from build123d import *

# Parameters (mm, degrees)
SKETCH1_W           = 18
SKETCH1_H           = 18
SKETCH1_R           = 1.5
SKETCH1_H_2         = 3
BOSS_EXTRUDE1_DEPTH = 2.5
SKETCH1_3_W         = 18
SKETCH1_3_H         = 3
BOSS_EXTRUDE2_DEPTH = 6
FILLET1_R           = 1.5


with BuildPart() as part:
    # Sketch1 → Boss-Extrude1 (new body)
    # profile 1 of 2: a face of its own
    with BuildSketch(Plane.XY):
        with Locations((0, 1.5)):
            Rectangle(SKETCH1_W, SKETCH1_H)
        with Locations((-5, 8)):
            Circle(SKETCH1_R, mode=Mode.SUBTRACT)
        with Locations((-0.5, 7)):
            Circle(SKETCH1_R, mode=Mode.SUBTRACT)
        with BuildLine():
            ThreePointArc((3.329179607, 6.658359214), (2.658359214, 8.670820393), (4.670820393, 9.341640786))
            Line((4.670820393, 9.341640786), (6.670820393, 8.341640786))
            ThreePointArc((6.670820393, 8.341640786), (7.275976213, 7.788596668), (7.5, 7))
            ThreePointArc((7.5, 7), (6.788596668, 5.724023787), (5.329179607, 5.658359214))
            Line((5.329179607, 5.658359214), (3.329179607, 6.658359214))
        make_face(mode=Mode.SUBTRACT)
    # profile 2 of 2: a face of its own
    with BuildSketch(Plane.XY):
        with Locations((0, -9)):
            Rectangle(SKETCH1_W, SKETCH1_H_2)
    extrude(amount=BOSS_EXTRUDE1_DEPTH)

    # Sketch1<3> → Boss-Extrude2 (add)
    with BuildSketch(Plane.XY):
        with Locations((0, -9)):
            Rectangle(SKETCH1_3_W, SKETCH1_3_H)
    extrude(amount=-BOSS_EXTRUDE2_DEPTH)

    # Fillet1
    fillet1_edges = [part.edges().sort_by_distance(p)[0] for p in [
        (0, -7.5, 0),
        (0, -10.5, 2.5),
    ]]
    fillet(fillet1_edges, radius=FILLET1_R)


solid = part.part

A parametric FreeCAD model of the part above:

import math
import FreeCAD as App
import Part
import Sketcher

V = App.Vector


def edges_at(feature, points):
    """Names of the edges that pass closest to the given points."""
    edges = feature.Shape.Edges
    near = lambda p: min(range(len(edges)), key=lambda i: edges[i].distToShape(Part.Vertex(*p))[0])
    return sorted({f"Edge{near(p) + 1}" for p in points})


def add_polygon(sketch, points):
    """Adds a closed chain of lines whose ends are joined by coincident constraints."""
    first, n = sketch.GeometryCount, len(points)
    for a, b in zip(points, points[1:] + points[:1]):
        sketch.addGeometry(Part.LineSegment(App.Vector(*a, 0), App.Vector(*b, 0)), False)
    for i in range(n):
        sketch.addConstraint(Sketcher.Constraint("Coincident", first + i, 2, first + (i + 1) % n, 1))

doc = App.newDocument("Part")
params = doc.addObject("Spreadsheet::Sheet", "Params")
for row, (alias, value) in enumerate([
    ("sketch1_diameter", "3 mm"),
    ("sketch1_width", "18 mm"),
    ("sketch1_height", "21 mm"),
    ("pad1_length", "2.5 mm"),
    ("sketch2_width", "18 mm"),
    ("sketch2_height", "3 mm"),
    ("pad2_length", "6 mm"),
    ("fillet_radius", "1.5 mm"),
], start=1):
    params.set(f"A{row}", alias)
    params.set(f"B{row}", "=" + value)
    params.setAlias(f"B{row}", alias)

body = doc.addObject("PartDesign::Body", "Body")

sketch1 = doc.addObject("Sketcher::SketchObject", "Sketch")
body.addObject(sketch1)
sketch1.AttachmentSupport = (doc.XY_Plane, [""])
sketch1.MapMode = "FlatFace"
add_polygon(sketch1, [(-9, 10.5), (-9, -10.5), (9, -10.5), (9, 10.5)])
sketch1.addGeometry(Part.Circle(V(-0.5, 7, 0), V(0, 0, 1), 1.5), False)
sketch1.addGeometry(Part.LineSegment(V(5.32918, 5.658359, 0), V(3.32918, 6.658359, 0)), False)
sketch1.addGeometry(Part.ArcOfCircle(Part.Circle(V(4, 8, 0), V(0, 0, 1), 1.5), math.radians(63.434949), math.radians(243.434949)), False)
sketch1.addGeometry(Part.LineSegment(V(4.67082, 9.341641, 0), V(6.67082, 8.341641, 0)), False)
sketch1.addGeometry(Part.ArcOfCircle(Part.Circle(V(6, 7, 0), V(0, 0, 1), 1.5), math.radians(0), math.radians(63.434949)), False)
sketch1.addGeometry(Part.ArcOfCircle(Part.Circle(V(6, 7, 0), V(0, 0, 1), 1.5), math.radians(-116.565051), math.radians(0)), False)
sketch1.addGeometry(Part.Circle(V(-5, 8, 0), V(0, 0, 1), 1.5), False)
sketch1.addConstraint(Sketcher.Constraint("Tangent", 5, 2, 6, 2))
sketch1.addConstraint(Sketcher.Constraint("Tangent", 6, 1, 7, 1))
sketch1.addConstraint(Sketcher.Constraint("Tangent", 7, 2, 8, 2))
sketch1.addConstraint(Sketcher.Constraint("Tangent", 8, 1, 9, 2))
sketch1.addConstraint(Sketcher.Constraint("Tangent", 9, 1, 5, 1))
sketch1.addConstraint(Sketcher.Constraint("Vertical", 0))
sketch1.addConstraint(Sketcher.Constraint("Horizontal", 1))
sketch1.addConstraint(Sketcher.Constraint("Vertical", 2))
sketch1.addConstraint(Sketcher.Constraint("Horizontal", 3))
sketch1.addConstraint(Sketcher.Constraint("Equal", 4, 6))
sketch1.addConstraint(Sketcher.Constraint("Equal", 6, 8))
sketch1.addConstraint(Sketcher.Constraint("Equal", 8, 9))
sketch1.addConstraint(Sketcher.Constraint("Equal", 9, 10))
sketch1.addConstraint(Sketcher.Constraint("Symmetric", 0, 2, 2, 2, -1, 1))
sketch1.addConstraint(Sketcher.Constraint("Horizontal", 4, 3, 8, 3))
sketch1.addConstraint(Sketcher.Constraint("Horizontal", 6, 3, 10, 3))
sketch1.addConstraint(Sketcher.Constraint("Horizontal", 9, 3, 8, 1))
sketch1.addConstraint(Sketcher.Constraint("Diameter", 4, 3.0))
sketch1.addConstraint(Sketcher.Constraint("DistanceX", 1, 1, 1, 2, 18.0))
sketch1.addConstraint(Sketcher.Constraint("DistanceY", 0, 2, 0, 1, 21.0))
sketch1.addConstraint(Sketcher.Constraint("DistanceY", -1, 1, 4, 3, 7.0))
sketch1.addConstraint(Sketcher.Constraint("DistanceX", -1, 1, 6, 3, 4.0))
sketch1.addConstraint(Sketcher.Constraint("DistanceY", -1, 1, 6, 3, 8.0))
sketch1.addConstraint(Sketcher.Constraint("DistanceX", -1, 1, 8, 3, 6.0))
sketch1.addConstraint(Sketcher.Constraint("DistanceX", 10, 3, -1, 1, 5.0))
sketch1.addConstraint(Sketcher.Constraint("DistanceX", 4, 3, -1, 1, 0.5))
sketch1.setExpression("Constraints[21]", "Params.sketch1_diameter")
sketch1.setExpression("Constraints[22]", "Params.sketch1_width")
sketch1.setExpression("Constraints[23]", "Params.sketch1_height")
pad1 = doc.addObject("PartDesign::Pad", "Pad")
body.addObject(pad1)
pad1.Profile = sketch1
pad1.setExpression("Length", "Params.pad1_length")

sketch2 = doc.addObject("Sketcher::SketchObject", "Sketch001")
body.addObject(sketch2)
sketch2.AttachmentSupport = (doc.XY_Plane, [""])
sketch2.MapMode = "FlatFace"
add_polygon(sketch2, [(-9, -7.5), (-9, -10.5), (9, -10.5), (9, -7.5)])
sketch2.addConstraint(Sketcher.Constraint("Vertical", 0))
sketch2.addConstraint(Sketcher.Constraint("Horizontal", 1))
sketch2.addConstraint(Sketcher.Constraint("Vertical", 2))
sketch2.addConstraint(Sketcher.Constraint("Horizontal", 3))
sketch2.addConstraint(Sketcher.Constraint("DistanceX", 1, 1, 1, 2, 18.0))
sketch2.addConstraint(Sketcher.Constraint("DistanceY", 0, 2, 0, 1, 3.0))
sketch2.addConstraint(Sketcher.Constraint("DistanceX", 0, 2, -1, 1, 9.0))
sketch2.addConstraint(Sketcher.Constraint("DistanceY", 0, 2, -1, 1, 10.5))
sketch2.setExpression("Constraints[8]", "Params.sketch2_width")
sketch2.setExpression("Constraints[9]", "Params.sketch2_height")
pad2 = doc.addObject("PartDesign::Pad", "Pad001")
body.addObject(pad2)
pad2.Profile = sketch2
pad2.setExpression("Length", "Params.pad2_length")
pad2.Reversed = True
doc.recompute()

fillet = doc.addObject("PartDesign::Fillet", "Fillet")
body.addObject(fillet)
fillet.Base = (pad2, edges_at(pad2, [(0, -7.5, 0), (0, -10.5, 2.5)]))
fillet.setExpression("Radius", "Params.fillet_radius")

doc.recompute()
